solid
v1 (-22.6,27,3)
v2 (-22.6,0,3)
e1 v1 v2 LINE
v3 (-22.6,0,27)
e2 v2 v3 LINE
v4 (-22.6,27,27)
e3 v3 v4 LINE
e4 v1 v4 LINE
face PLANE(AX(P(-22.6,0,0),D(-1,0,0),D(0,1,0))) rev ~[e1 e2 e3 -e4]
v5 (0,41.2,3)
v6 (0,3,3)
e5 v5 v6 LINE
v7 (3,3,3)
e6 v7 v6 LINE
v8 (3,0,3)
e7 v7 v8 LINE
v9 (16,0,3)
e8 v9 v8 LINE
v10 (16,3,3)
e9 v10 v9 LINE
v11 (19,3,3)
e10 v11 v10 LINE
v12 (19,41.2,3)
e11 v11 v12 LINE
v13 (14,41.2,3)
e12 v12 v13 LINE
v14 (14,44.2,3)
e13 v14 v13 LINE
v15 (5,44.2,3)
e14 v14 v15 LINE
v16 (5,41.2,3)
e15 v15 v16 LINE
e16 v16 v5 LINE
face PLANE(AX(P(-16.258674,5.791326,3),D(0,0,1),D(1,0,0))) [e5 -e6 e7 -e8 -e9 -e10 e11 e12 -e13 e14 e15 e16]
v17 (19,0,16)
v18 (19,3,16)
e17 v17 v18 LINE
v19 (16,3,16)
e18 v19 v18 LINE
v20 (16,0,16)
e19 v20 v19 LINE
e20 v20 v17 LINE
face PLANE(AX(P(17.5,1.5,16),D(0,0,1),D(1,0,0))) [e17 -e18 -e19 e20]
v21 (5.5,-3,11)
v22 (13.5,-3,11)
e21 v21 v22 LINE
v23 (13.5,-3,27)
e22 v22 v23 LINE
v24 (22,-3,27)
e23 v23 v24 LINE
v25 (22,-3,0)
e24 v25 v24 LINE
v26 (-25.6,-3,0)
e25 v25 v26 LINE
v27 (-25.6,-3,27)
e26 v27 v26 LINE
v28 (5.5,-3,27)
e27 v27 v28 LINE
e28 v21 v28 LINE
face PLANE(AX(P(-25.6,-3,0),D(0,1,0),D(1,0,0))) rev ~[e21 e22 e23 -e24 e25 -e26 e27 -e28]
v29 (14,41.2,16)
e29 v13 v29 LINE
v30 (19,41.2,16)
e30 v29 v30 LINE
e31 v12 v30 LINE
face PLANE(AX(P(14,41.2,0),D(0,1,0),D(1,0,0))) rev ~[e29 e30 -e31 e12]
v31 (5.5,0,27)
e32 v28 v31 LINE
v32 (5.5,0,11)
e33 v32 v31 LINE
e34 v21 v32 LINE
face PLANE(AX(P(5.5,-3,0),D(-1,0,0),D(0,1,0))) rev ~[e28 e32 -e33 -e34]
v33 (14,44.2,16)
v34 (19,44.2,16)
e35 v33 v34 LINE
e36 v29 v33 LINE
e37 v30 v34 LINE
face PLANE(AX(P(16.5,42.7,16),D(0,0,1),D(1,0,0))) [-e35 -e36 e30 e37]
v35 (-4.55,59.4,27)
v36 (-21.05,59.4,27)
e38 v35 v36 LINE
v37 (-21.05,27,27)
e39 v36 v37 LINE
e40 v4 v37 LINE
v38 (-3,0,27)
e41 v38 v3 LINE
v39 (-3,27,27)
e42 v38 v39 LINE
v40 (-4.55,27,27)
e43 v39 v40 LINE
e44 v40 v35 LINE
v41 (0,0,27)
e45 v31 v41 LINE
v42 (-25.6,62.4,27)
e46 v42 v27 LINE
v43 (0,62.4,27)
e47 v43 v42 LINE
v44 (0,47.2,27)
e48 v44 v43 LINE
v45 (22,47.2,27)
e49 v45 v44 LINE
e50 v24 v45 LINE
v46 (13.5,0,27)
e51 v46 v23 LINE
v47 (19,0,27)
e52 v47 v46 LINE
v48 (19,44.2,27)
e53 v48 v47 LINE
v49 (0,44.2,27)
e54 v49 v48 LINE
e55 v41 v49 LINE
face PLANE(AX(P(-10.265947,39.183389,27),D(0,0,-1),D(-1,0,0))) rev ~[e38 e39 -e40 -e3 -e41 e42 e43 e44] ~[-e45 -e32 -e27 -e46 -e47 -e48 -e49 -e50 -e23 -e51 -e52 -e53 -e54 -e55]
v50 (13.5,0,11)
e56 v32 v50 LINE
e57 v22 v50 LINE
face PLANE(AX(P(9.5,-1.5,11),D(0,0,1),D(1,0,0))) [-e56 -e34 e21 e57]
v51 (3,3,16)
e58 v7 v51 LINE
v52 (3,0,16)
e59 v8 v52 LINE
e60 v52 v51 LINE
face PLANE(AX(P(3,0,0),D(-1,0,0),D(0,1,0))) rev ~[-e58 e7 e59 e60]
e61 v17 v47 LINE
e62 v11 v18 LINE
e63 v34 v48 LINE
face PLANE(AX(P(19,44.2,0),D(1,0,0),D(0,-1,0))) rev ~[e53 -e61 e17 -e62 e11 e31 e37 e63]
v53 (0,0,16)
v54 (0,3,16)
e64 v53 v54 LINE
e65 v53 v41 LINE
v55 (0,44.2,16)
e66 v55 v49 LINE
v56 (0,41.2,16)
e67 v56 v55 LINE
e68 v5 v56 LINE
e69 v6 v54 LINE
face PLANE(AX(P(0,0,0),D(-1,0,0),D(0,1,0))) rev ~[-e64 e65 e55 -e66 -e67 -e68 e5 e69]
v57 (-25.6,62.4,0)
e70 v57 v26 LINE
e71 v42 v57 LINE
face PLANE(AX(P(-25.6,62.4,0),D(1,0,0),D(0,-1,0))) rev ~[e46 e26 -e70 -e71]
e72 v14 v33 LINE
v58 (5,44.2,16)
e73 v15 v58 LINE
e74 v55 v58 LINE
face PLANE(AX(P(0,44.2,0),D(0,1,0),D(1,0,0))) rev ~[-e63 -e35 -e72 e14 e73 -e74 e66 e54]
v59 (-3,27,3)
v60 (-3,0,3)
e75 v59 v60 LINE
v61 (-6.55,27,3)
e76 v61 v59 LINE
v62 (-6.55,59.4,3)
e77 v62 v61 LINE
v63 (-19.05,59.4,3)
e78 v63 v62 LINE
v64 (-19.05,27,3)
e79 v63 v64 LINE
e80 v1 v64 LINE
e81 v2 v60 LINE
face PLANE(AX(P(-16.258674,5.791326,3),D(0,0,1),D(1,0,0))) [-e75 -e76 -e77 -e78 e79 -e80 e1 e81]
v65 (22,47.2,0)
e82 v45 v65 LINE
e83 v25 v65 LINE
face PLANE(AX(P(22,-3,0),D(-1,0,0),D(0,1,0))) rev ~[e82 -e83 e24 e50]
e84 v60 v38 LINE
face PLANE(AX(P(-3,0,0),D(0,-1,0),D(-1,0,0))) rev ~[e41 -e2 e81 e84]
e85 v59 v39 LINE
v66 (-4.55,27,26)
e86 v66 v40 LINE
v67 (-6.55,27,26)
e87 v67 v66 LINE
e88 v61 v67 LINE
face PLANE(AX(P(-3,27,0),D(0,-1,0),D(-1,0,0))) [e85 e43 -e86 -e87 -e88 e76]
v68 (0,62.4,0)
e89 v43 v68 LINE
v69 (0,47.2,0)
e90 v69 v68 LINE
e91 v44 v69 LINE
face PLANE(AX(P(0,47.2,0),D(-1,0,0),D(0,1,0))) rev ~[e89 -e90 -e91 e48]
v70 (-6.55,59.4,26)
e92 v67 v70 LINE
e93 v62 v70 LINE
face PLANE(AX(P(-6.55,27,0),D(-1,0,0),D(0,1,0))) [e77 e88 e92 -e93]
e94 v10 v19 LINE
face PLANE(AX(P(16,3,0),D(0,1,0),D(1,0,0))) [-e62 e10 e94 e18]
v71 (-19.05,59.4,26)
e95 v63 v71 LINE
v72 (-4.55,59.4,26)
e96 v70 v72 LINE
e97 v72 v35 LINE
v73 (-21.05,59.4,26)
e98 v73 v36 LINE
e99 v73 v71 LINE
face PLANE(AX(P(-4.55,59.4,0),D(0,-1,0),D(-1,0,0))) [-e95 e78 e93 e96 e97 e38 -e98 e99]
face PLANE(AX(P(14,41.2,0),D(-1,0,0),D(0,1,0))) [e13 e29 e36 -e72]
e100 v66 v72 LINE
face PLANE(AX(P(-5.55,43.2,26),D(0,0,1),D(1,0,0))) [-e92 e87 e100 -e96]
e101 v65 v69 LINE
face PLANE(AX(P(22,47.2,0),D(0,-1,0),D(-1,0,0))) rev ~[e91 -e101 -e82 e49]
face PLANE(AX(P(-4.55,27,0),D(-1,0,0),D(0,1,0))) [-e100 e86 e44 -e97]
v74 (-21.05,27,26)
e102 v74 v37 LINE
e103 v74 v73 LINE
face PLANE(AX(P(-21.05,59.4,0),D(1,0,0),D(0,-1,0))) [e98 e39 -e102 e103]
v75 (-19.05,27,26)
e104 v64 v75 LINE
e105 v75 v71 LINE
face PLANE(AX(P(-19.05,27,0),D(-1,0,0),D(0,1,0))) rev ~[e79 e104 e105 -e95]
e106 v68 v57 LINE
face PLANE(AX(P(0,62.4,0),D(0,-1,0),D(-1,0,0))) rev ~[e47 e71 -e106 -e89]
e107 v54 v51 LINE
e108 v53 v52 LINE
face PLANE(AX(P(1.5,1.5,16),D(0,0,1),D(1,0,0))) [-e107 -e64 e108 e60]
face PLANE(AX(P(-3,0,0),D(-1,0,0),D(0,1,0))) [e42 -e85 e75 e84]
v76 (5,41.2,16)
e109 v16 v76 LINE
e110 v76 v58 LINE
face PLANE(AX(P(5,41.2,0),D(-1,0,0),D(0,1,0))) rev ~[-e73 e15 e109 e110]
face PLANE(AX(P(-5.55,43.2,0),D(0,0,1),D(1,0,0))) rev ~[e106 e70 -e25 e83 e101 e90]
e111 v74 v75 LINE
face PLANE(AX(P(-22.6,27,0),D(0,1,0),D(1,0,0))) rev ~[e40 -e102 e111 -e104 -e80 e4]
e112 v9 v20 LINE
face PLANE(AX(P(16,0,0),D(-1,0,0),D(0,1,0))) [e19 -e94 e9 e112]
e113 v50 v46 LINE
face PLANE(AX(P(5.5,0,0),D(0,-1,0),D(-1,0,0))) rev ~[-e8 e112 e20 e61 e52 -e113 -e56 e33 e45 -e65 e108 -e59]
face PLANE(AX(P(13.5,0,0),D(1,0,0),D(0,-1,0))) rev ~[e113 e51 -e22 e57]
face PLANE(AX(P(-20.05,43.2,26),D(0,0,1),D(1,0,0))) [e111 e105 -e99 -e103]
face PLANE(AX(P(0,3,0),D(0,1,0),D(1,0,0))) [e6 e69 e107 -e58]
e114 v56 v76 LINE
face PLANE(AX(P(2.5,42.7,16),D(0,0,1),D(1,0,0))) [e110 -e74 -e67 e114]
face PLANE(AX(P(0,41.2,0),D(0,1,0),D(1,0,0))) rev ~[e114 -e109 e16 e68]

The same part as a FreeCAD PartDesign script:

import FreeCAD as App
import Part
import Sketcher

V = App.Vector


def add_polygon(sketch, points):
    """Adds a closed chain of lines whose ends are joined by coincident constraints."""
    first, n = sketch.GeometryCount, len(points)
    for a, b in zip(points, points[1:] + points[:1]):
        sketch.addGeometry(Part.LineSegment(App.Vector(*a, 0), App.Vector(*b, 0)), False)
    for i in range(n):
        sketch.addConstraint(Sketcher.Constraint("Coincident", first + i, 2, first + (i + 1) % n, 1))

doc = App.newDocument("Part")
params = doc.addObject("Spreadsheet::Sheet", "Params")
for row, (alias, value) in enumerate([
    ("sketch1_width", "22 mm"),
    ("sketch1_width2", "47.6 mm"),
    ("sketch1_height", "50.2 mm"),
    ("sketch1_height2", "15.2 mm"),
    ("pad1_length", "3 mm"),
    ("sketch2_width", "19 mm"),
    ("sketch2_width2", "22 mm"),
    ("sketch2_height", "3 mm"),
    ("sketch2_height2", "27 mm"),
    ("sketch2_width3", "5.5 mm"),
    ("pad2_length", "27 mm"),
    ("sketch3_width", "5 mm"),
    ("sketch3_width2", "3 mm"),
    ("pad3_length", "16 mm"),
    ("sketch4_width", "8 mm"),
    ("sketch4_height", "3 mm"),
    ("pad4_length", "11 mm"),
    ("sketch5_width", "2 mm"),
    ("sketch5_height", "32.4 mm"),
    ("pad5_length", "26 mm"),
], start=1):
    params.set(f"A{row}", alias)
    params.set(f"B{row}", "=" + value)
    params.setAlias(f"B{row}", alias)

body = doc.addObject("PartDesign::Body", "Body")

sketch1 = body.newObject("Sketcher::SketchObject", "Sketch")
sketch1.AttachmentSupport = (doc.getObject("XY_Plane"), [""])
sketch1.MapMode = "FlatFace"
add_polygon(sketch1, [(-26, -3), (22, -3), (22, 47), (0, 47), (0, 62), (-26, 62)])
sketch1.addConstraint(Sketcher.Constraint("Horizontal", 0))
sketch1.addConstraint(Sketcher.Constraint("Vertical", 1))
sketch1.addConstraint(Sketcher.Constraint("Horizontal", 2))
sketch1.addConstraint(Sketcher.Constraint("Vertical", 3))
sketch1.addConstraint(Sketcher.Constraint("Horizontal", 4))
sketch1.addConstraint(Sketcher.Constraint("Vertical", 5))
sketch1.addConstraint(Sketcher.Constraint("PointOnObject", 2, 2, -2))
sketch1.addConstraint(Sketcher.Constraint("DistanceX", 2, 2, 2, 1, 22.0))
sketch1.addConstraint(Sketcher.Constraint("DistanceX", 0, 1, 0, 2, 47.6))
sketch1.addConstraint(Sketcher.Constraint("DistanceY", 1, 1, 1, 2, 50.2))
sketch1.addConstraint(Sketcher.Constraint("DistanceY", 3, 1, 3, 2, 15.2))
sketch1.addConstraint(Sketcher.Constraint("DistanceY", 0, 2, -1, 1, 3.0))
sketch1.setExpression("Constraints[13]", "Params.sketch1_width")
sketch1.setExpression("Constraints[14]", "Params.sketch1_width2")
sketch1.setExpression("Constraints[15]", "Params.sketch1_height")
sketch1.setExpression("Constraints[16]", "Params.sketch1_height2")
pad1 = body.newObject("PartDesign::Pad", "Pad")
pad1.Profile = sketch1
pad1.setExpression("Length", "Params.pad1_length")

sketch2 = body.newObject("Sketcher::SketchObject", "Sketch001")
sketch2.AttachmentSupport = (doc.getObject("XY_Plane"), [""])
sketch2.MapMode = "FlatFace"
add_polygon(sketch2, [(0, 0), (0, 44.2), (19, 44.2), (19, 0), (13.5, 0), (13.5, -3), (22, -3), (22, 47.2), (0, 47.2), (0, 62.4), (-25.6, 62.4), (-25.6, -3), (5.5, -3), (5.5, 0)])
add_polygon(sketch2, [(-3, 27), (-3, 0), (-22.6, 0), (-22.6, 27), (-21.1, 27), (-21.1, 59.4), (-4.5, 59.4), (-4.5, 27)])
sketch2.addConstraint(Sketcher.Constraint("Vertical", 0))
sketch2.addConstraint(Sketcher.Constraint("Horizontal", 1))
sketch2.addConstraint(Sketcher.Constraint("Vertical", 2))
sketch2.addConstraint(Sketcher.Constraint("Horizontal", 3))
sketch2.addConstraint(Sketcher.Constraint("Vertical", 4))
sketch2.addConstraint(Sketcher.Constraint("Horizontal", 5))
sketch2.addConstraint(Sketcher.Constraint("Vertical", 6))
sketch2.addConstraint(Sketcher.Constraint("Horizontal", 7))
sketch2.addConstraint(Sketcher.Constraint("Vertical", 8))
sketch2.addConstraint(Sketcher.Constraint("Horizontal", 9))
sketch2.addConstraint(Sketcher.Constraint("Vertical", 10))
sketch2.addConstraint(Sketcher.Constraint("Horizontal", 11))
sketch2.addConstraint(Sketcher.Constraint("Vertical", 12))
sketch2.addConstraint(Sketcher.Constraint("Horizontal", 13))
sketch2.addConstraint(Sketcher.Constraint("Vertical", 14))
sketch2.addConstraint(Sketcher.Constraint("Horizontal", 15))
sketch2.addConstraint(Sketcher.Constraint("Vertical", 16))
sketch2.addConstraint(Sketcher.Constraint("Horizontal", 17))
sketch2.addConstraint(Sketcher.Constraint("Vertical", 18))
sketch2.addConstraint(Sketcher.Constraint("Horizontal", 19))
sketch2.addConstraint(Sketcher.Constraint("Vertical", 20))
sketch2.addConstraint(Sketcher.Constraint("Horizontal", 21))
sketch2.addConstraint(Sketcher.Constraint("Coincident", 13, 2, -1, 1))
sketch2.addConstraint(Sketcher.Constraint("PointOnObject", 2, 2, -1))
sketch2.addConstraint(Sketcher.Constraint("PointOnObject", 7, 2, -2))
sketch2.addConstraint(Sketcher.Constraint("PointOnObject", 14, 2, -1))
sketch2.addConstraint(Sketcher.Constraint("Horizontal", 5, 2, 10, 2))
sketch2.addConstraint(Sketcher.Constraint("Horizontal", 17, 2, 20, 2))
sketch2.addConstraint(Sketcher.Constraint("Equal", 3, 13))
sketch2.addConstraint(Sketcher.Constraint("Equal", 17, 21))
sketch2.addConstraint(Sketcher.Constraint("DistanceX", 1, 1, 1, 2, 19.0))
sketch2.addConstraint(Sketcher.Constraint("DistanceX", 7, 2, 7, 1, 22.0))
sketch2.addConstraint(Sketcher.Constraint("DistanceY", 4, 2, 4, 1, 3.0))
sketch2.addConstraint(Sketcher.Constraint("DistanceY", 14, 2, 14, 1, 27.0))
sketch2.addConstraint(Sketcher.Constraint("DistanceX", 3, 2, 3, 1, 5.5))
sketch2.addConstraint(Sketcher.Constraint("DistanceX", 9, 2, 9, 1, 25.6))
sketch2.addConstraint(Sketcher.Constraint("DistanceX", 15, 2, 15, 1, 19.6))
sketch2.addConstraint(Sketcher.Constraint("DistanceX", 19, 1, 19, 2, 16.5))
sketch2.addConstraint(Sketcher.Constraint("DistanceY", 0, 1, 0, 2, 44.2))
sketch2.addConstraint(Sketcher.Constraint("DistanceY", 6, 1, 6, 2, 50.2))
sketch2.addConstraint(Sketcher.Constraint("DistanceY", 8, 1, 8, 2, 15.2))
sketch2.addConstraint(Sketcher.Constraint("DistanceY", 18, 1, 18, 2, 32.4))
sketch2.addConstraint(Sketcher.Constraint("DistanceX", 14, 2, -1, 1, 3.0))
sketch2.setExpression("Constraints[52]", "Params.sketch2_width")
sketch2.setExpression("Constraints[53]", "Params.sketch2_width2")
sketch2.setExpression("Constraints[54]", "Params.sketch2_height")
sketch2.setExpression("Constraints[55]", "Params.sketch2_height2")
sketch2.setExpression("Constraints[56]", "Params.sketch2_width3")
pad2 = body.newObject("PartDesign::Pad", "Pad001")
pad2.Profile = sketch2
pad2.setExpression("Length", "Params.pad2_length")

sketch3 = body.newObject("Sketcher::SketchObject", "Sketch002")
sketch3.AttachmentSupport = (doc.getObject("XY_Plane"), [""])
sketch3.MapMode = "FlatFace"
add_polygon(sketch3, [(0, 44.2), (0, 41.2), (5, 41.2), (5, 44.2)])
add_polygon(sketch3, [(14, 44.2), (14, 41.2), (19, 41.2), (19, 44.2)])
add_polygon(sketch3, [(16, 3), (16, 0), (19, 0), (19, 3)])
add_polygon(sketch3, [(0, 3), (0, 0), (3, 0), (3, 3)])
sketch3.addConstraint(Sketcher.Constraint("Vertical", 0))
sketch3.addConstraint(Sketcher.Constraint("Horizontal", 1))
sketch3.addConstraint(Sketcher.Constraint("Vertical", 2))
sketch3.addConstraint(Sketcher.Constraint("Horizontal", 3))
sketch3.addConstraint(Sketcher.Constraint("Vertical", 4))
sketch3.addConstraint(Sketcher.Constraint("Horizontal", 5))
sketch3.addConstraint(Sketcher.Constraint("Vertical", 6))
sketch3.addConstraint(Sketcher.Constraint("Horizontal", 7))
sketch3.addConstraint(Sketcher.Constraint("Vertical", 8))
sketch3.addConstraint(Sketcher.Constraint("Horizontal", 9))
sketch3.addConstraint(Sketcher.Constraint("Vertical", 10))
sketch3.addConstraint(Sketcher.Constraint("Horizontal", 11))
sketch3.addConstraint(Sketcher.Constraint("Vertical", 12))
sketch3.addConstraint(Sketcher.Constraint("Horizontal", 13))
sketch3.addConstraint(Sketcher.Constraint("Vertical", 14))
sketch3.addConstraint(Sketcher.Constraint("Horizontal", 15))
sketch3.addConstraint(Sketcher.Constraint("Coincident", 12, 2, -1, 1))
sketch3.addConstraint(Sketcher.Constraint("PointOnObject", 0, 2, -2))
sketch3.addConstraint(Sketcher.Constraint("PointOnObject", 8, 2, -1))
sketch3.addConstraint(Sketcher.Constraint("Horizontal", 1, 2, 4, 2))
sketch3.addConstraint(Sketcher.Constraint("Horizontal", 3, 2, 6, 2))
sketch3.addConstraint(Sketcher.Constraint("Horizontal", 11, 2, 14, 2))
sketch3.addConstraint(Sketcher.Constraint("Vertical", 6, 2, 9, 2))
sketch3.addConstraint(Sketcher.Constraint("Equal", 3, 5))
sketch3.addConstraint(Sketcher.Constraint("Equal", 11, 13))
sketch3.addConstraint(Sketcher.Constraint("Equal", 15, 0))
sketch3.addConstraint(Sketcher.Constraint("Equal", 6, 8))
sketch3.addConstraint(Sketcher.Constraint("DistanceX", 1, 1, 1, 2, 5.0))
sketch3.addConstraint(Sketcher.Constraint("DistanceX", 9, 1, 9, 2, 3.0))
sketch3.addConstraint(Sketcher.Constraint("DistanceX", -1, 1, 4, 2, 14.0))
sketch3.addConstraint(Sketcher.Constraint("DistanceY", -1, 1, 0, 2, 41.2))
sketch3.setExpression("Constraints[43]", "Params.sketch3_width")
sketch3.setExpression("Constraints[44]", "Params.sketch3_width2")
pad3 = body.newObject("PartDesign::Pad", "Pad002")
pad3.Profile = sketch3
pad3.setExpression("Length", "Params.pad3_length")

sketch4 = body.newObject("Sketcher::SketchObject", "Sketch003")
sketch4.AttachmentSupport = (doc.getObject("XY_Plane"), [""])
sketch4.MapMode = "FlatFace"
add_polygon(sketch4, [(5.5, 0), (5.5, -3), (13.5, -3), (13.5, 0)])
sketch4.addConstraint(Sketcher.Constraint("Vertical", 0))
sketch4.addConstraint(Sketcher.Constraint("Horizontal", 1))
sketch4.addConstraint(Sketcher.Constraint("Vertical", 2))
sketch4.addConstraint(Sketcher.Constraint("Horizontal", 3))
sketch4.addConstraint(Sketcher.Constraint("PointOnObject", 2, 2, -1))
sketch4.addConstraint(Sketcher.Constraint("DistanceX", 1, 1, 1, 2, 8.0))
sketch4.addConstraint(Sketcher.Constraint("DistanceY", 0, 2, 0, 1, 3.0))
sketch4.addConstraint(Sketcher.Constraint("DistanceX", -1, 1, 0, 2, 5.5))
sketch4.setExpression("Constraints[9]", "Params.sketch4_width")
sketch4.setExpression("Constraints[10]", "Params.sketch4_height")
pad4 = body.newObject("PartDesign::Pad", "Pad003")
pad4.Profile = sketch4
pad4.setExpression("Length", "Params.pad4_length")

sketch5 = body.newObject("Sketcher::SketchObject", "Sketch004")
sketch5.AttachmentSupport = (doc.getObject("XY_Plane"), [""])
sketch5.MapMode = "FlatFace"
add_polygon(sketch5, [(-6.5, 59.4), (-6.5, 27), (-4.5, 27), (-4.5, 59.4)])
add_polygon(sketch5, [(-21.1, 59.4), (-21.1, 27), (-19.1, 27), (-19.1, 59.4)])
sketch5.addConstraint(Sketcher.Constraint("Vertical", 0))
sketch5.addConstraint(Sketcher.Constraint("Horizontal", 1))
sketch5.addConstraint(Sketcher.Constraint("Vertical", 2))
sketch5.addConstraint(Sketcher.Constraint("Horizontal", 3))
sketch5.addConstraint(Sketcher.Constraint("Vertical", 4))
sketch5.addConstraint(Sketcher.Constraint("Horizontal", 5))
sketch5.addConstraint(Sketcher.Constraint("Vertical", 6))
sketch5.addConstraint(Sketcher.Constraint("Horizontal", 7))
sketch5.addConstraint(Sketcher.Constraint("Horizontal", 1, 2, 4, 2))
sketch5.addConstraint(Sketcher.Constraint("Horizontal", 3, 2, 6, 2))
sketch5.addConstraint(Sketcher.Constraint("Equal", 3, 5))
sketch5.addConstraint(Sketcher.Constraint("DistanceX", 1, 1, 1, 2, 2.0))
sketch5.addConstraint(Sketcher.Constraint("DistanceY", 0, 2, 0, 1, 32.4))
sketch5.addConstraint(Sketcher.Constraint("DistanceY", -1, 1, 0, 2, 27.0))
sketch5.addConstraint(Sketcher.Constraint("DistanceX", 4, 2, 0, 2, 14.5))
sketch5.addConstraint(Sketcher.Constraint("DistanceX", 0, 2, -1, 1, 6.55))
sketch5.setExpression("Constraints[19]", "Params.sketch5_width")
sketch5.setExpression("Constraints[20]", "Params.sketch5_height")
pad5 = body.newObject("PartDesign::Pad", "Pad004")
pad5.Profile = sketch5
pad5.setExpression("Length", "Params.pad5_length")

doc.recompute()
